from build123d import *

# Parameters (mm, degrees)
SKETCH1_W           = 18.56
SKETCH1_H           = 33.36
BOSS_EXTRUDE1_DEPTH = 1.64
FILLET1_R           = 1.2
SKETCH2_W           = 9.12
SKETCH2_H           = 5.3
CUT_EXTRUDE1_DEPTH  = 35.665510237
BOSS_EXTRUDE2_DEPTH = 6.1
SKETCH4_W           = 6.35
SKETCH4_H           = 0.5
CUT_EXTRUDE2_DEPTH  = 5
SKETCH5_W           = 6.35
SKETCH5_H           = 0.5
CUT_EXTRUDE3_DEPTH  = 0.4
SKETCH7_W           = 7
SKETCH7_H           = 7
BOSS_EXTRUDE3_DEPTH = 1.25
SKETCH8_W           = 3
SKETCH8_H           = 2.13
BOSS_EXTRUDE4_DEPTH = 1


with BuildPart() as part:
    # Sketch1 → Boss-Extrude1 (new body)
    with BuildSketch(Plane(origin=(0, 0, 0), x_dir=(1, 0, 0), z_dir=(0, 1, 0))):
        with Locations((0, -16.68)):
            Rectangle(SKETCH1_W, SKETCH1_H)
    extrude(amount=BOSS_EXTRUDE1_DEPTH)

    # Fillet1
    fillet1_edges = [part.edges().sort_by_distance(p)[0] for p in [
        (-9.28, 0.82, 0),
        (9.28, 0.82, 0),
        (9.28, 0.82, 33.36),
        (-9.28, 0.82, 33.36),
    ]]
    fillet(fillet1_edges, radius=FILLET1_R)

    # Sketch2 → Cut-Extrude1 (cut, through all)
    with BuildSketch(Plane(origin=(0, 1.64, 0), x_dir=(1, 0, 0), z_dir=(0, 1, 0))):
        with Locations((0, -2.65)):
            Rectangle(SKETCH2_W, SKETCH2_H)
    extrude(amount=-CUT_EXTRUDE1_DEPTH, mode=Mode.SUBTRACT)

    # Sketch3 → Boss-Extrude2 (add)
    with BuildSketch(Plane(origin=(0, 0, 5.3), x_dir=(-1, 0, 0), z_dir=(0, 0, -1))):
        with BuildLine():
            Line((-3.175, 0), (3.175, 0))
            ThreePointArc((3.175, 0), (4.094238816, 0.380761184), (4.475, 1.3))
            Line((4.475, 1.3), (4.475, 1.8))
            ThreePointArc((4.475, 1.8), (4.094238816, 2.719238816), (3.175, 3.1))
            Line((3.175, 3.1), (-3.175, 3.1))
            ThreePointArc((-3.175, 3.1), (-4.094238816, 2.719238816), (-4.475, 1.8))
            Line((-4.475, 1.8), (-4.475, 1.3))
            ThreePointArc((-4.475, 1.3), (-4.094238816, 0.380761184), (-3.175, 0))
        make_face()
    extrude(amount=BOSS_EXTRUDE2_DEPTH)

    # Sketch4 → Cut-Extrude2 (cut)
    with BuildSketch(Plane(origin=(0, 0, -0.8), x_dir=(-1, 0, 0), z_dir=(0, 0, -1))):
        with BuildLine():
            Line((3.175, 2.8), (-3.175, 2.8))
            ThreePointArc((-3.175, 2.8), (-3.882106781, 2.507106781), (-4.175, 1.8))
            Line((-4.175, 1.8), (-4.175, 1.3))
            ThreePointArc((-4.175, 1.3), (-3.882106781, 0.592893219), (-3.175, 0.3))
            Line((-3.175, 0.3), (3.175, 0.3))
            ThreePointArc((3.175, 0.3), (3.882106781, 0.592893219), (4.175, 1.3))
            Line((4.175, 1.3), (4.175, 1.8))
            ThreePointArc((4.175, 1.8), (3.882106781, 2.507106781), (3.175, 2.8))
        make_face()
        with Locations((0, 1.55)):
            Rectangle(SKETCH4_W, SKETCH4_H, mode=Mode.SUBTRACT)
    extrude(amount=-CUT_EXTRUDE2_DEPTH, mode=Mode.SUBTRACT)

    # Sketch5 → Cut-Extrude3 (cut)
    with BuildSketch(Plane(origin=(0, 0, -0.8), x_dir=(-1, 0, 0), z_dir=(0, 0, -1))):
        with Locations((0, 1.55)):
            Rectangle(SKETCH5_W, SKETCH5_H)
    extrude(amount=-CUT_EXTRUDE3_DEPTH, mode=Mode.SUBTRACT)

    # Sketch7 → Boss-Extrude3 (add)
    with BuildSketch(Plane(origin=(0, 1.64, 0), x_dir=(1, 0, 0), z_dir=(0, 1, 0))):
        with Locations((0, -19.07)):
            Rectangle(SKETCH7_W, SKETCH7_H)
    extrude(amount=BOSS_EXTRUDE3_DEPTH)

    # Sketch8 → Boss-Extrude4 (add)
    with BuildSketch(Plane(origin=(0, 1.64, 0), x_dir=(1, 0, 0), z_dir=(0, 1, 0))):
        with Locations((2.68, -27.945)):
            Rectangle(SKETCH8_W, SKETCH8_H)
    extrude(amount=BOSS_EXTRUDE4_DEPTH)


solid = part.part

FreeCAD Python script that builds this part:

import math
import FreeCAD as App
import Part
import Sketcher
Q = App.Units.Quantity


def edges_at(feature, points):
    """Names of the edges that pass closest to the given points."""
    edges = feature.Shape.Edges
    near = lambda p: min(range(len(edges)), key=lambda i: edges[i].distToShape(Part.Vertex(*p))[0])
    return sorted({f"Edge{near(p) + 1}" for p in points})


def add_polygon(sketch, points):
    """Adds a closed chain of lines whose ends are joined by coincident constraints."""
    first, n = sketch.GeometryCount, len(points)
    for a, b in zip(points, points[1:] + points[:1]):
        sketch.addGeometry(Part.LineSegment(App.Vector(*a, 0), App.Vector(*b, 0)), False)
    for i in range(n):
        sketch.addConstraint(Sketcher.Constraint("Coincident", first + i, 2, first + (i + 1) % n, 1))

doc = App.newDocument("Part")
body = doc.addObject("PartDesign::Body", "Body")

# Sketch on XZ plane
sketch1 = body.newObject("Sketcher::SketchObject", "Sketch")
sketch1.AttachmentSupport = (doc.getObject("XZ_Plane"), [""])
sketch1.MapMode = "FlatFace"
add_polygon(sketch1, [(-9, 0), (-9, 33), (9, 33), (9, 0)])  # lines 0-3
sketch1.addConstraint([
    Sketcher.Constraint("Vertical", 0),
    Sketcher.Constraint("Horizontal", 1),
    Sketcher.Constraint("Vertical", 2),
    Sketcher.Constraint("Horizontal", 3),
    Sketcher.Constraint("Symmetric", 2, 2, 3, 2, -1, 1),
    Sketcher.Constraint("DistanceX", 1, 1, 1, 2, Q("18.56 mm")),
    Sketcher.Constraint("DistanceY", 0, 1, 0, 2, Q("33.36 mm")),
])
pad1 = body.newObject("PartDesign::Pad", "Pad")
pad1.Profile = sketch1
pad1.Length = 1.64
pad1.Reversed = True
doc.recompute()

fillet = body.newObject("PartDesign::Fillet", "Fillet")
fillet.Base = (pad1, edges_at(pad1, [
    (-9.28, 0.82, 0),
    (9.28, 0.82, 0),
    (9.28, 0.82, 33.36),
    (-9.28, 0.82, 33.36),
]))
fillet.Radius = 1.2

# Sketch on XZ plane
sketch2 = body.newObject("Sketcher::SketchObject", "Sketch001")
sketch2.AttachmentSupport = (doc.getObject("XZ_Plane"), [""])
sketch2.MapMode = "FlatFace"
sketch2.AttachmentOffset = App.Placement(App.Vector(0, 0, -1.64), App.Rotation())
add_polygon(sketch2, [(-5, 0), (-5, 5), (5, 5), (5, 0)])  # lines 0-3
sketch2.addConstraint([
    Sketcher.Constraint("Vertical", 0),
    Sketcher.Constraint("Horizontal", 1),
    Sketcher.Constraint("Vertical", 2),
    Sketcher.Constraint("Horizontal", 3),
    Sketcher.Constraint("Symmetric", 2, 2, 3, 2, -1, 1),
    Sketcher.Constraint("DistanceY", 0, 1, 0, 2, Q("5.3 mm")),
    Sketcher.Constraint("DistanceX", 1, 1, 1, 2, Q("9.12 mm")),
])
pocket1 = body.newObject("PartDesign::Pocket", "Pocket")
pocket1.Profile = sketch2
pocket1.Type = "ThroughAll"
pocket1.Reversed = True

# Sketch on XY plane
sketch3 = body.newObject("Sketcher::SketchObject", "Sketch002")
sketch3.AttachmentSupport = (doc.getObject("XY_Plane"), [""])
sketch3.MapMode = "FlatFace"
sketch3.AttachmentOffset = App.Placement(App.Vector(0, 0, 5.3), App.Rotation())
sketch3.addGeometry([
    Part.LineSegment(App.Vector(3.2, 0, 0), App.Vector(-3.2, 0, 0)),  # 0
    Part.ArcOfCircle(Part.Circle(App.Vector(-3.2, 1.3, 0), App.Vector(0, 0, 1), 1.3), math.radians(180), math.radians(270)),  # 1
    Part.LineSegment(App.Vector(-4.5, 1.3, 0), App.Vector(-4.5, 1.8, 0)),  # 2
    Part.ArcOfCircle(Part.Circle(App.Vector(-3.2, 1.8, 0), App.Vector(0, 0, 1), 1.3), math.radians(90), math.radians(180)),  # 3
    Part.LineSegment(App.Vector(-3.2, 3.1, 0), App.Vector(3.2, 3.1, 0)),  # 4
    Part.ArcOfCircle(Part.Circle(App.Vector(3.2, 1.8, 0), App.Vector(0, 0, 1), 1.3), math.radians(0), math.radians(90)),  # 5
    Part.LineSegment(App.Vector(4.5, 1.8, 0), App.Vector(4.5, 1.3, 0)),  # 6
    Part.ArcOfCircle(Part.Circle(App.Vector(3.2, 1.3, 0), App.Vector(0, 0, 1), 1.3), math.radians(-90), math.radians(0)),  # 7
], False)
sketch3.addConstraint([
    Sketcher.Constraint("Tangent", 0, 2, 1, 2),
    Sketcher.Constraint("Tangent", 1, 1, 2, 1),
    Sketcher.Constraint("Tangent", 2, 2, 3, 2),
    Sketcher.Constraint("Tangent", 3, 1, 4, 1),
    Sketcher.Constraint("Tangent", 4, 2, 5, 2),
    Sketcher.Constraint("Tangent", 5, 1, 6, 1),
    Sketcher.Constraint("Tangent", 6, 2, 7, 2),
    Sketcher.Constraint("Tangent", 7, 1, 0, 1),
    Sketcher.Constraint("Horizontal", 0),
    Sketcher.Constraint("Vertical", 2),
    Sketcher.Constraint("Horizontal", 4),
    Sketcher.Constraint("Vertical", 6),
    Sketcher.Constraint("Equal", 1, 3),
    Sketcher.Constraint("Equal", 3, 5),
    Sketcher.Constraint("Equal", 5, 7),
    Sketcher.Constraint("Symmetric", 0, 2, 7, 1, -1, 1),
    Sketcher.Constraint("Radius", 1, Q("1.3 mm")),
    Sketcher.Constraint("DistanceY", 2, 1, 2, 2, Q("0.5 mm")),
    Sketcher.Constraint("DistanceX", 0, 2, 0, 1, Q("6.35 mm")),
])
pad2 = body.newObject("PartDesign::Pad", "Pad001")
pad2.Profile = sketch3
pad2.Length = 6.1
pad2.Reversed = True

# Sketch on XY plane
sketch4 = body.newObject("Sketcher::SketchObject", "Sketch003")
sketch4.AttachmentSupport = (doc.getObject("XY_Plane"), [""])
sketch4.MapMode = "FlatFace"
sketch4.AttachmentOffset = App.Placement(App.Vector(0, 0, -0.8), App.Rotation())
sketch4.addGeometry(Part.LineSegment(App.Vector(-3.2, 2.8, 0), App.Vector(3.2, 2.8, 0)), False)  # 0
sketch4.addGeometry(Part.ArcOfCircle(Part.Circle(App.Vector(3.2, 1.8, 0), App.Vector(0, 0, 1), 1), math.radians(0), math.radians(90)), False)  # 1
sketch4.addGeometry(Part.LineSegment(App.Vector(4.2, 1.8, 0), App.Vector(4.2, 1.3, 0)), False)  # 2
sketch4.addGeometry(Part.ArcOfCircle(Part.Circle(App.Vector(3.2, 1.3, 0), App.Vector(0, 0, 1), 1), math.radians(-90), math.radians(0)), False)  # 3
sketch4.addGeometry(Part.LineSegment(App.Vector(3.2, 0.3, 0), App.Vector(-3.2, 0.3, 0)), False)  # 4
sketch4.addGeometry(Part.ArcOfCircle(Part.Circle(App.Vector(-3.2, 1.3, 0), App.Vector(0, 0, 1), 1), math.radians(-180), math.radians(-90)), False)  # 5
sketch4.addGeometry(Part.LineSegment(App.Vector(-4.2, 1.3, 0), App.Vector(-4.2, 1.8, 0)), False)  # 6
sketch4.addGeometry(Part.ArcOfCircle(Part.Circle(App.Vector(-3.2, 1.8, 0), App.Vector(0, 0, 1), 1), math.radians(90), math.radians(180)), False)  # 7
add_polygon(sketch4, [(-3.2, 1.3), (3.2, 1.3), (3.2, 1.8), (-3.2, 1.8)])  # lines 8-11
sketch4.addConstraint([
    Sketcher.Constraint("Tangent", 0, 2, 1, 2),
    Sketcher.Constraint("Tangent", 1, 1, 2, 1),
    Sketcher.Constraint("Tangent", 2, 2, 3, 2),
    Sketcher.Constraint("Tangent", 3, 1, 4, 1),
    Sketcher.Constraint("Tangent", 4, 2, 5, 2),
    Sketcher.Constraint("Tangent", 5, 1, 6, 1),
    Sketcher.Constraint("Tangent", 6, 2, 7, 2),
    Sketcher.Constraint("Tangent", 7, 1, 0, 1),
    Sketcher.Constraint("Horizontal", 0),
    Sketcher.Constraint("Vertical", 2),
    Sketcher.Constraint("Horizontal", 4),
    Sketcher.Constraint("Vertical", 6),
    Sketcher.Constraint("Horizontal", 8),
    Sketcher.Constraint("Vertical", 9),
    Sketcher.Constraint("Horizontal", 10),
    Sketcher.Constraint("Vertical", 11),
    Sketcher.Constraint("Coincident", 8, 2, 3, 3),
    Sketcher.Constraint("Coincident", 9, 2, 1, 3),
    Sketcher.Constraint("Coincident", 10, 2, 7, 3),
    Sketcher.Constraint("Equal", 3, 5),
    Sketcher.Constraint("Radius", 1, Q("1 mm")),
    Sketcher.Constraint("DistanceY", 2, 2, 2, 1, Q("0.5 mm")),
    Sketcher.Constraint("DistanceX", 0, 1, 0, 2, Q("6.35 mm")),
    Sketcher.Constraint("DistanceY", -1, 1, 1, 3, Q("1.8 mm")),
    Sketcher.Constraint("DistanceX", -1, 1, 1, 3, Q("3.175 mm")),
])
pocket2 = body.newObject("PartDesign::Pocket", "Pocket001")
pocket2.Profile = sketch4
pocket2.Length = 5
pocket2.Reversed = True

# Sketch on XY plane
sketch5 = body.newObject("Sketcher::SketchObject", "Sketch004")
sketch5.AttachmentSupport = (doc.getObject("XY_Plane"), [""])
sketch5.MapMode = "FlatFace"
sketch5.AttachmentOffset = App.Placement(App.Vector(0, 0, -0.8), App.Rotation())
add_polygon(sketch5, [(3.2, 1.8), (3.2, 1.3), (-3.2, 1.3), (-3.2, 1.8)])  # lines 0-3
sketch5.addConstraint([
    Sketcher.Constraint("Vertical", 0),
    Sketcher.Constraint("Horizontal", 1),
    Sketcher.Constraint("Vertical", 2),
    Sketcher.Constraint("Horizontal", 3),
    Sketcher.Constraint("DistanceY", 0, 2, 0, 1, Q("0.5 mm")),
    Sketcher.Constraint("DistanceX", 1, 2, 1, 1, Q("6.35 mm")),
    Sketcher.Constraint("DistanceY", -1, 1, 0, 2, Q("1.3 mm")),
    Sketcher.Constraint("DistanceX", -1, 1, 0, 2, Q("3.175 mm")),
])
pocket3 = body.newObject("PartDesign::Pocket", "Pocket002")
pocket3.Profile = sketch5
pocket3.Length = 0.4
pocket3.Reversed = True

# Sketch on XZ plane
sketch6 = body.newObject("Sketcher::SketchObject", "Sketch005")
sketch6.AttachmentSupport = (doc.getObject("XZ_Plane"), [""])
sketch6.MapMode = "FlatFace"
sketch6.AttachmentOffset = App.Placement(App.Vector(0, 0, -1.64), App.Rotation())
add_polygon(sketch6, [(-4, 16), (-4, 23), (4, 23), (4, 16)])  # lines 0-3
sketch6.addConstraint([
    Sketcher.Constraint("Vertical", 0),
    Sketcher.Constraint("Horizontal", 1),
    Sketcher.Constraint("Vertical", 2),
    Sketcher.Constraint("Horizontal", 3),
    Sketcher.Constraint("Equal", 3, 0),
    Sketcher.Constraint("DistanceX", 1, 1, 1, 2, Q("7 mm")),
    Sketcher.Constraint("DistanceX", 0, 2, -1, 1, Q("3.5 mm")),
    Sketcher.Constraint("DistanceY", -1, 1, 0, 2, Q("22.57 mm")),
])
pad3 = body.newObject("PartDesign::Pad", "Pad002")
pad3.Profile = sketch6
pad3.Length = 1.25
pad3.Reversed = True

# Sketch on XZ plane
sketch7 = body.newObject("Sketcher::SketchObject", "Sketch006")
sketch7.AttachmentSupport = (doc.getObject("XZ_Plane"), [""])
sketch7.MapMode = "FlatFace"
sketch7.AttachmentOffset = App.Placement(App.Vector(0, 0, -1.64), App.Rotation())
add_polygon(sketch7, [(1.2, 26.9), (1.2, 29), (4.2, 29), (4.2, 26.9)])  # lines 0-3
sketch7.addConstraint([
    Sketcher.Constraint("Vertical", 0),
    Sketcher.Constraint("Horizontal", 1),
    Sketcher.Constraint("Vertical", 2),
    Sketcher.Constraint("Horizontal", 3),
    Sketcher.Constraint("DistanceX", 1, 1, 1, 2, Q("3 mm")),
    Sketcher.Constraint("DistanceY", 0, 1, 0, 2, Q("2.13 mm")),
    Sketcher.Constraint("DistanceX", -1, 1, 0, 2, Q("1.18 mm")),
    Sketcher.Constraint("DistanceY", -1, 1, 0, 2, Q("29.01 mm")),
])
pad4 = body.newObject("PartDesign::Pad", "Pad003")
pad4.Profile = sketch7
pad4.Length = 1
pad4.Reversed = True

doc.recompute()
